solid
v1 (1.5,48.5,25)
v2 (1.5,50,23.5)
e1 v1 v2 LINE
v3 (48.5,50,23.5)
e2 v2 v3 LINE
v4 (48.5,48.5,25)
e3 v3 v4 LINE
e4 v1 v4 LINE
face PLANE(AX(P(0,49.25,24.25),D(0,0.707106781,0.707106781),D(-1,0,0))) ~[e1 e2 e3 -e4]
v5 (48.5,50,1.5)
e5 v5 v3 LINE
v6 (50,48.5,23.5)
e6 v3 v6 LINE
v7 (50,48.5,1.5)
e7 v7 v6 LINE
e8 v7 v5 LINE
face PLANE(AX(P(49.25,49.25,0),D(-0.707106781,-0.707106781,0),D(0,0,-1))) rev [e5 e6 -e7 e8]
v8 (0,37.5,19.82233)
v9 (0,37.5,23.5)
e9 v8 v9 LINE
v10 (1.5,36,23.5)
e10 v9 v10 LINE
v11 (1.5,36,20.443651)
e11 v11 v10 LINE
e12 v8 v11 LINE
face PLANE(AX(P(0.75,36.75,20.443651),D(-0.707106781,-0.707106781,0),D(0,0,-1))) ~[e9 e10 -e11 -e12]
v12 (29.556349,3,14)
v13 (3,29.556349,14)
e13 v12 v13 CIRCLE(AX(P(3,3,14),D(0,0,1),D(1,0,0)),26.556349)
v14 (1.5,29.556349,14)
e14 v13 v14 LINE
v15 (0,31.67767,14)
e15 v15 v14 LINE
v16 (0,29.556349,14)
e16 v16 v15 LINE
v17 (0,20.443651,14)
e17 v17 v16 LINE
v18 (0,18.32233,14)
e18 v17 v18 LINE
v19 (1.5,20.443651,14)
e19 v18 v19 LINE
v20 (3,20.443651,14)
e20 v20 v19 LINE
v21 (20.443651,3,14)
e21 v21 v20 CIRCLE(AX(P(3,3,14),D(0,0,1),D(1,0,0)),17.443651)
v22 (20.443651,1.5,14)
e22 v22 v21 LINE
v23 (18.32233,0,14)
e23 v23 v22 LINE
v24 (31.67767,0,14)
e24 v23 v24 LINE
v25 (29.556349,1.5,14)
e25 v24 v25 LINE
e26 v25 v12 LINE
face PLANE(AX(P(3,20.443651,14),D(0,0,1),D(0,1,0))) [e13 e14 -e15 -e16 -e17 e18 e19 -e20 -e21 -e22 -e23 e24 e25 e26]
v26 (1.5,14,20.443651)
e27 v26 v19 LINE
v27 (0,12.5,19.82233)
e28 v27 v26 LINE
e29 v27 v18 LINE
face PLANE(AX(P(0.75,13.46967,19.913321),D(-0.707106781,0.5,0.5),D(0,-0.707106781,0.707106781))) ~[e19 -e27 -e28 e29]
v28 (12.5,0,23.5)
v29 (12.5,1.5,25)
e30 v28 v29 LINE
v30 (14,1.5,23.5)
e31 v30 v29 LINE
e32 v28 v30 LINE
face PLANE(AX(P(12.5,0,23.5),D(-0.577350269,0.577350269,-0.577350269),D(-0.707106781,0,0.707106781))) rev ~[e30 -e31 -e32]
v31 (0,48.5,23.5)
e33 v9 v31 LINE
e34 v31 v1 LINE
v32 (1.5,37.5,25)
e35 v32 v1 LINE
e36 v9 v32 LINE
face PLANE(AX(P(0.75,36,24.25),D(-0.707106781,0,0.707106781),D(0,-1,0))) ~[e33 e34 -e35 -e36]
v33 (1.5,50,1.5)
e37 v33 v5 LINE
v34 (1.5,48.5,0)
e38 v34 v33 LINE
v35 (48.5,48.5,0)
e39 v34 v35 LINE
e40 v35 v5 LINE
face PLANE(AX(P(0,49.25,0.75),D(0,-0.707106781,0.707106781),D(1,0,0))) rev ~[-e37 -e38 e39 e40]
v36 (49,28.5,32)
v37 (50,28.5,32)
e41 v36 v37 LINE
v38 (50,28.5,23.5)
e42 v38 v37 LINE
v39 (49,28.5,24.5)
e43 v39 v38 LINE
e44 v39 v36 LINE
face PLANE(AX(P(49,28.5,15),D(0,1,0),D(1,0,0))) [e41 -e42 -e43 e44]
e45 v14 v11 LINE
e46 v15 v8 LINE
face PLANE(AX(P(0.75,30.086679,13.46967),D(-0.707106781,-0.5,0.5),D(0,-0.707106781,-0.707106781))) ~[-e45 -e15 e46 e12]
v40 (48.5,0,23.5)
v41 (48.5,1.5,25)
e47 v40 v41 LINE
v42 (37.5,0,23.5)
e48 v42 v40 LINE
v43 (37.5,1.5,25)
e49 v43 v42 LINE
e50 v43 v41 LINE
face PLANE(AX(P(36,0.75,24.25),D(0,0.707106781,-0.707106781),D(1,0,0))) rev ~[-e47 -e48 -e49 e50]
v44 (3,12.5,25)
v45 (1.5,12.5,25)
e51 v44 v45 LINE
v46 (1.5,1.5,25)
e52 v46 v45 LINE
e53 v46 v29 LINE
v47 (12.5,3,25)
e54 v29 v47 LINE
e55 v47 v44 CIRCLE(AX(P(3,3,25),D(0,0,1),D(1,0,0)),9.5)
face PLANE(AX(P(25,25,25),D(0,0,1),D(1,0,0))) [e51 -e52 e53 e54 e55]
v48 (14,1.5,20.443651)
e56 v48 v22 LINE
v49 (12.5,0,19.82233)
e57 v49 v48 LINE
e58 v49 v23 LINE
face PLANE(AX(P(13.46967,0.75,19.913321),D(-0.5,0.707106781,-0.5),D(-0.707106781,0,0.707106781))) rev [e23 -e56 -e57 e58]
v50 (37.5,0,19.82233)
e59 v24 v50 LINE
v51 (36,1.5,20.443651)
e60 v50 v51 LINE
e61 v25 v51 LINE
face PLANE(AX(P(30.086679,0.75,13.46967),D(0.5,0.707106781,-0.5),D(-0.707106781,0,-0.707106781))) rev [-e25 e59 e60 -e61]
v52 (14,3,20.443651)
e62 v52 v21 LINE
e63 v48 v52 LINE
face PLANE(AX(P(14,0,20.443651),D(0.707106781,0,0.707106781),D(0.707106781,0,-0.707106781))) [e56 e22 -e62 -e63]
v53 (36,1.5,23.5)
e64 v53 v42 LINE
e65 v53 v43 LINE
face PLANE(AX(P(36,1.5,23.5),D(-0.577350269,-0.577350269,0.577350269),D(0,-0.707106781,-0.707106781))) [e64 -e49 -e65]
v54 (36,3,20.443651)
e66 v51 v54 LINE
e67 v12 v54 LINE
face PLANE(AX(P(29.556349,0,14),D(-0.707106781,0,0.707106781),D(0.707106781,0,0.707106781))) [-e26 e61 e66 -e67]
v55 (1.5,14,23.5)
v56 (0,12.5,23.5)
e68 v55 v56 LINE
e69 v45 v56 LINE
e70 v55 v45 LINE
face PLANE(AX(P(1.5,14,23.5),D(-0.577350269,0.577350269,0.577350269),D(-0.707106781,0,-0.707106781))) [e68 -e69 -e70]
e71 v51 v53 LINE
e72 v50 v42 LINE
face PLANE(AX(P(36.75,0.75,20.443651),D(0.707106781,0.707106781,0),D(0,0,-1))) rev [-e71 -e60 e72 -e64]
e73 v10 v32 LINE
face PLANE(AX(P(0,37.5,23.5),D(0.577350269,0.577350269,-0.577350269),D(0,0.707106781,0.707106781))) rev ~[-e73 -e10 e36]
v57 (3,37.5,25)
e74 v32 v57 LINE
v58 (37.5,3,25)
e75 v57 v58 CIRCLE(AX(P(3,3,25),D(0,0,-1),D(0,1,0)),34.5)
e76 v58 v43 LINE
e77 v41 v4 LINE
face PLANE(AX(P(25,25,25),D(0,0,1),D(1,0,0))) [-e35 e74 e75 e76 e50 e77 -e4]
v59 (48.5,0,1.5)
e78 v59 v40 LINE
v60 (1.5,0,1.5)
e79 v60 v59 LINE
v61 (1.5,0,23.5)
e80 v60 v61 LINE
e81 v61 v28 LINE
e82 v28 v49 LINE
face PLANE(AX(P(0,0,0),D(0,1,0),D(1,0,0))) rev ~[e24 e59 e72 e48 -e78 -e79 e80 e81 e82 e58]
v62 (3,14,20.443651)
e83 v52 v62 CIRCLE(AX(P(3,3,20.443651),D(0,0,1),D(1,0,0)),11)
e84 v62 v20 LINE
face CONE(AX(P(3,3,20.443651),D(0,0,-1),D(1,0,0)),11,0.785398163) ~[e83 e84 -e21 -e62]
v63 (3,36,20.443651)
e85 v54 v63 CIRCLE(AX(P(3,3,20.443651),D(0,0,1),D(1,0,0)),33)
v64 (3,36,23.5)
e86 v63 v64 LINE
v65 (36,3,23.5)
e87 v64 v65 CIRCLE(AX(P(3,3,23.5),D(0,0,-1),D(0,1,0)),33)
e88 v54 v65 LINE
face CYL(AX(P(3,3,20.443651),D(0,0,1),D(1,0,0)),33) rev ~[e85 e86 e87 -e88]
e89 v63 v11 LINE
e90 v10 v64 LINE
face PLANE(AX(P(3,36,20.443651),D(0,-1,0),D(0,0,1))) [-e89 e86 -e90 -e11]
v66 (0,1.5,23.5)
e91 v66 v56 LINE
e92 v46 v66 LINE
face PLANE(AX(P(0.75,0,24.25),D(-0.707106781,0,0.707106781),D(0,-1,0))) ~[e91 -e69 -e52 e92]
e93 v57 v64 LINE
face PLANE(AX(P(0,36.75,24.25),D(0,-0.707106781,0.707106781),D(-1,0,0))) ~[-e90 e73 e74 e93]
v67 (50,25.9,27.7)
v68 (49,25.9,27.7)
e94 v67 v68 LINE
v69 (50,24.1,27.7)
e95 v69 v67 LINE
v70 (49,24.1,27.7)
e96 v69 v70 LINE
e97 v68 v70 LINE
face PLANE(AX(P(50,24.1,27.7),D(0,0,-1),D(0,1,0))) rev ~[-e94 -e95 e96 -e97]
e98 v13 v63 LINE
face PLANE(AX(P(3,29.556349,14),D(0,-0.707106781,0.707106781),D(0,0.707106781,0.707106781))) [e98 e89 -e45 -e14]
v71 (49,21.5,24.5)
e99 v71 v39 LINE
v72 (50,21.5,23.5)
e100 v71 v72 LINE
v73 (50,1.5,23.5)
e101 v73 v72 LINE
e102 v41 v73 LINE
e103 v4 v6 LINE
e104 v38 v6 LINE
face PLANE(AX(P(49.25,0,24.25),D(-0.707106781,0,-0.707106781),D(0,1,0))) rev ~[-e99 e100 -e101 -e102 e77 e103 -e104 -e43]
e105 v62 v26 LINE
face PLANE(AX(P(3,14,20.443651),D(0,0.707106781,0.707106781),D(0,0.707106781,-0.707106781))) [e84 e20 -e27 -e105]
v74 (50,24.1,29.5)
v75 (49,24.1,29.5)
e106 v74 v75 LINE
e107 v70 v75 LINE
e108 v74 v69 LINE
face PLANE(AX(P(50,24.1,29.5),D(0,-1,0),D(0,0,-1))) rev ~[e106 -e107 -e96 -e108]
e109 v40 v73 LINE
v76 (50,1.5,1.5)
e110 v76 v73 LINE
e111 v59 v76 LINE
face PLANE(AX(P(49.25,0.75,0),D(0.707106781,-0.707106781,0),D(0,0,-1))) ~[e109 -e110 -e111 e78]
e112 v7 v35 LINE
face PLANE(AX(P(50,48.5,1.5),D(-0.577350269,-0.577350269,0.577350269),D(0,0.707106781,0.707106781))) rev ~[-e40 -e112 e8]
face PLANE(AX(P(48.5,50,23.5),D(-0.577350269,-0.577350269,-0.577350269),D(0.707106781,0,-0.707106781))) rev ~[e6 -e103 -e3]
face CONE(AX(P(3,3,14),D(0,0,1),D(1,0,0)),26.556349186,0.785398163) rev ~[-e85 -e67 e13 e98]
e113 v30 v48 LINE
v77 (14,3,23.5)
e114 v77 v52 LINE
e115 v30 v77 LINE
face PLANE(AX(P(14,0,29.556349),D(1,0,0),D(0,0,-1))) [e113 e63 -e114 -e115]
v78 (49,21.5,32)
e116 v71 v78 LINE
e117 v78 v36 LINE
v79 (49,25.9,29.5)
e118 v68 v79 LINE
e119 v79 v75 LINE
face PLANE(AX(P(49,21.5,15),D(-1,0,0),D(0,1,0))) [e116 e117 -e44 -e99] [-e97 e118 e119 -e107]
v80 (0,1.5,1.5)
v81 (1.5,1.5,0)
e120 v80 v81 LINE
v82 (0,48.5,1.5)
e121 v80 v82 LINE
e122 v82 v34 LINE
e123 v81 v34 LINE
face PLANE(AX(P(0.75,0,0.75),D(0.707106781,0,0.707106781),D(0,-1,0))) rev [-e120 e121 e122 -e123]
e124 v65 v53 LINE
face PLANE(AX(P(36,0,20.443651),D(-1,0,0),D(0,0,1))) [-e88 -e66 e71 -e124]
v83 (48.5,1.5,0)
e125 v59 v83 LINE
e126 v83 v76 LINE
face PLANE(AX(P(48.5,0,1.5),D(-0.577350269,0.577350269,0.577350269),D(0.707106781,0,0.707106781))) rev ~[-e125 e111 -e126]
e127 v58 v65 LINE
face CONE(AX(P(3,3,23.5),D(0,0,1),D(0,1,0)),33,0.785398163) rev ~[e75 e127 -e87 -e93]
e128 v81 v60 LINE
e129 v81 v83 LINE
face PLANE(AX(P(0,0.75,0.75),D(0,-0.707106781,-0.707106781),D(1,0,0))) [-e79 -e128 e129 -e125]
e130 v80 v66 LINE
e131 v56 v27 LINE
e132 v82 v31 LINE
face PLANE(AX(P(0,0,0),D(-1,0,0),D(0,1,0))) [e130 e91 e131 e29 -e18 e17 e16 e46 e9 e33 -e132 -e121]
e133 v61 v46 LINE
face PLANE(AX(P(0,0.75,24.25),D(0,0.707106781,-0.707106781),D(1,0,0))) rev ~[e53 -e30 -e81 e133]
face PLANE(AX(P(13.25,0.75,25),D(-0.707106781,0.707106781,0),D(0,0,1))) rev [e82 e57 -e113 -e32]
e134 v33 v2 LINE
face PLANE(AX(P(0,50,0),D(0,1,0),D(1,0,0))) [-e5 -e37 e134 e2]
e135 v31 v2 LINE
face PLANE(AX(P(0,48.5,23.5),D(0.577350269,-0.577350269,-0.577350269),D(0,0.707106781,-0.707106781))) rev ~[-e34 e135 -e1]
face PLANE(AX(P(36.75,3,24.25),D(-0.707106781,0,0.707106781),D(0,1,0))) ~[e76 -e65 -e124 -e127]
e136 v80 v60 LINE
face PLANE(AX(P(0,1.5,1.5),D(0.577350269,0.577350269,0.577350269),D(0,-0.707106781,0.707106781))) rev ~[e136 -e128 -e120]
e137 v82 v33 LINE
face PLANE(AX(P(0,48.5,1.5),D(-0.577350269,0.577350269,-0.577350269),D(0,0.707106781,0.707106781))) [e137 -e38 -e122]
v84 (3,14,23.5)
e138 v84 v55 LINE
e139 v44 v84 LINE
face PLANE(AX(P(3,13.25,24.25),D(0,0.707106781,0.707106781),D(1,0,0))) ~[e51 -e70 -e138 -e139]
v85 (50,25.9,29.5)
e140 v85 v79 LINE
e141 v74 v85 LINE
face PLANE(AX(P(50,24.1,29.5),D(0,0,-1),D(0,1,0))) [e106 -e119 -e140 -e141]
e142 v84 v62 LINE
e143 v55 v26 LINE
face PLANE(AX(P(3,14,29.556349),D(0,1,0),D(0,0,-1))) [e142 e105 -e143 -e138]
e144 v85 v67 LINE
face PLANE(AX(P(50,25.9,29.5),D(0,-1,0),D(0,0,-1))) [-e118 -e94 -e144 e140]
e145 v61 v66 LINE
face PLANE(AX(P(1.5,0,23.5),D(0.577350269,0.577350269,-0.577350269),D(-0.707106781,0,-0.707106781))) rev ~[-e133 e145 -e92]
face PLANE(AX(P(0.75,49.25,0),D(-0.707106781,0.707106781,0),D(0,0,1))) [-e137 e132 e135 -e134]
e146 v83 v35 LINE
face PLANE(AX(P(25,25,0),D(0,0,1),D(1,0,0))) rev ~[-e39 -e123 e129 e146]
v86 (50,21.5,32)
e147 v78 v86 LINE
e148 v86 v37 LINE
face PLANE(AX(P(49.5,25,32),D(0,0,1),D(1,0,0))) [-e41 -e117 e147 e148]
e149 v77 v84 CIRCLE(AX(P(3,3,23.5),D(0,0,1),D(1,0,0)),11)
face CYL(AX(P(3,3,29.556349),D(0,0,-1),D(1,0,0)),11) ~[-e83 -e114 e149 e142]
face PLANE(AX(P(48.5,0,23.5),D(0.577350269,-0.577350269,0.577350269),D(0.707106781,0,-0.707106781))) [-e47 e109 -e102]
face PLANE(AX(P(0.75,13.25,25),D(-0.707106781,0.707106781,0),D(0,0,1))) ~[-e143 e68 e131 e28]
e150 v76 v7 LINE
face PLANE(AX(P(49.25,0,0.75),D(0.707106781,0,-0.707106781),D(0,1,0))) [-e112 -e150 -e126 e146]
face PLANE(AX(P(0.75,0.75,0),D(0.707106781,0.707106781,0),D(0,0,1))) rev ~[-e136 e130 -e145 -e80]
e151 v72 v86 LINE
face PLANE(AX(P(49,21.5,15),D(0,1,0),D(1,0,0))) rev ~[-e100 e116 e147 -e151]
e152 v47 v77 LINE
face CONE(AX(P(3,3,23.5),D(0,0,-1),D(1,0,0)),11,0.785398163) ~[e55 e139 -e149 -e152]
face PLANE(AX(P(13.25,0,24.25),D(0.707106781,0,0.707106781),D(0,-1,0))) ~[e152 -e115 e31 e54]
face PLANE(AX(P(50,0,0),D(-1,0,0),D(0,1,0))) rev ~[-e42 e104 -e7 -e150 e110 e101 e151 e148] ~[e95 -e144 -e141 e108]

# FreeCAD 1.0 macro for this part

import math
import FreeCAD as App
import Part
import Sketcher
Q = App.Units.Quantity


def edges_at(feature, points):
    """Names of the edges that pass closest to the given points."""
    edges = feature.Shape.Edges
    near = lambda p: min(range(len(edges)), key=lambda i: edges[i].distToShape(Part.Vertex(*p))[0])
    return sorted({f"Edge{near(p) + 1}" for p in points})


def add_polygon(sketch, points):
    """Adds a closed chain of lines whose ends are joined by coincident constraints."""
    first, n = sketch.GeometryCount, len(points)
    for a, b in zip(points, points[1:] + points[:1]):
        sketch.addGeometry(Part.LineSegment(App.Vector(*a, 0), App.Vector(*b, 0)), False)
    for i in range(n):
        sketch.addConstraint(Sketcher.Constraint("Coincident", first + i, 2, first + (i + 1) % n, 1))

doc = App.newDocument("Part")
body = doc.addObject("PartDesign::Body", "Body")

sketch1 = body.newObject("Sketcher::SketchObject", "Sketch")
sketch1.AttachmentSupport = (doc.getObject("XY_Plane"), [""])
sketch1.MapMode = "FlatFace"
add_polygon(sketch1, [(0, 50), (0, 0), (50, 0), (50, 50)])
sketch1.addConstraint(Sketcher.Constraint("Vertical", 0))
sketch1.addConstraint(Sketcher.Constraint("Horizontal", 1))
sketch1.addConstraint(Sketcher.Constraint("Vertical", 2))
sketch1.addConstraint(Sketcher.Constraint("Horizontal", 3))
sketch1.addConstraint(Sketcher.Constraint("Coincident", 0, 2, -1, 1))
sketch1.addConstraint(Sketcher.Constraint("Equal", 3, 0))
sketch1.addConstraint(Sketcher.Constraint("DistanceX", 1, 1, 1, 2, Q("50 mm")))
pad1 = body.newObject("PartDesign::Pad", "Pad")
pad1.Profile = sketch1
pad1.Length = 25

sketch2 = body.newObject("Sketcher::SketchObject", "Sketch001")
sketch2.AttachmentSupport = (doc.getObject("XZ_Plane"), [""])
sketch2.MapMode = "FlatFace"
add_polygon(sketch2, [(36, 30), (30, 36), (20, 36), (14, 30), (14, 20), (20, 14), (30, 14), (36, 20)])
sketch2.addConstraint(Sketcher.Constraint("Horizontal", 1))
sketch2.addConstraint(Sketcher.Constraint("Vertical", 3))
sketch2.addConstraint(Sketcher.Constraint("Horizontal", 5))
sketch2.addConstraint(Sketcher.Constraint("Vertical", 7))
sketch2.addConstraint(Sketcher.Constraint("Perpendicular", 0, 2))
sketch2.addConstraint(Sketcher.Constraint("Perpendicular", 2, 4))
sketch2.addConstraint(Sketcher.Constraint("Perpendicular", 4, 6))
sketch2.addConstraint(Sketcher.Constraint("Horizontal", 3, 2, 6, 2))
sketch2.addConstraint(Sketcher.Constraint("Horizontal", 2, 2, 7, 2))
sketch2.addConstraint(Sketcher.Constraint("Vertical", 1, 2, 4, 2))
sketch2.addConstraint(Sketcher.Constraint("Vertical", 0, 2, 5, 2))
sketch2.addConstraint(Sketcher.Constraint("Equal", 5, 3))
sketch2.addConstraint(Sketcher.Constraint("DistanceY", -1, 1, 0, 2, Q("36 mm")))
sketch2.addConstraint(Sketcher.Constraint("DistanceX", -1, 1, 2, 2, Q("14 mm")))
sketch2.addConstraint(Sketcher.Constraint("DistanceY", -1, 1, 4, 2, Q("14 mm")))
sketch2.addConstraint(Sketcher.Constraint("DistanceX", 1, 2, 1, 1, Q("9.112698 mm")))

sketch3 = body.newObject("Sketcher::SketchObject", "Sketch002")
sketch3.AttachmentSupport = (doc.getObject("XY_Plane"), [""])
sketch3.MapMode = "FlatFace"
sketch3.AttachmentOffset = App.Placement(App.Vector(0, 0, 25), App.Rotation())
sketch3.addGeometry(Part.LineSegment(App.Vector(25, 0, 0), App.Vector(25, 3, 0)), False)
sketch3.addGeometry(Part.ArcOfCircle(Part.Circle(App.Vector(3, 3, 0), App.Vector(0, 0, 1), 22), math.radians(0), math.radians(90)), False)
sketch3.addGeometry(Part.LineSegment(App.Vector(3, 25, 0), App.Vector(0, 25, 0)), False)
sketch3.addConstraint(Sketcher.Constraint("Tangent", 0, 2, 1, 1))
sketch3.addConstraint(Sketcher.Constraint("Tangent", 1, 2, 2, 1))
sketch3.addConstraint(Sketcher.Constraint("Vertical", 0))
sketch3.addConstraint(Sketcher.Constraint("Horizontal", 2))
sketch3.addConstraint(Sketcher.Constraint("PointOnObject", 0, 1, -1))
sketch3.addConstraint(Sketcher.Constraint("PointOnObject", 2, 2, -2))
sketch3.addConstraint(Sketcher.Constraint("Equal", 2, 0))
sketch3.addConstraint(Sketcher.Constraint("Radius", 1, Q("22 mm")))
sketch3.addConstraint(Sketcher.Constraint("DistanceX", 2, 2, 2, 1, Q("3 mm")))
doc.recompute()

subtractivepipe = body.newObject("PartDesign::SubtractivePipe", "SubtractivePipe")
subtractivepipe.Profile = sketch2
subtractivepipe.Spine = (sketch3, ["Edge1", "Edge2", "Edge3"])
doc.recompute()

chamfer = body.newObject("PartDesign::Chamfer", "Chamfer")
chamfer.Base = (subtractivepipe, edges_at(subtractivepipe, [
    (50, 25, 25),
    (25, 50, 25),
    (0, 7, 25),
    (43, 0, 25),
    (14, 1.5, 25),
    (10.778, 10.778, 25),
    (1.5, 14, 25),
    (36, 1.5, 25),
    (26.335, 26.335, 25),
    (1.5, 36, 25),
    (0, 14, 22.722),
    (0, 36, 22.722),
    (36, 0, 22.722),
    (14, 0, 22.722),
    (17.222, 0, 17.222),
    (32.778, 0, 17.222),
    (0, 32.778, 17.222),
    (0, 17.222, 17.222),
    (0, 43, 25),
    (25, 50, 0),
    (50, 25, 0),
    (25, 0, 0),
    (0, 25, 0),
    (7, 0, 25),
    (0, 50, 12.5),
    (50, 50, 12.5),
    (50, 0, 12.5),
    (0, 0, 12.5),
]))
chamfer.Size = 1.5

sketch4 = body.newObject("Sketcher::SketchObject", "Sketch003")
sketch4.AttachmentSupport = (doc.getObject("XY_Plane"), [""])
sketch4.MapMode = "FlatFace"
sketch4.AttachmentOffset = App.Placement(App.Vector(0, 0, 25), App.Rotation())
add_polygon(sketch4, [(49, 28.5), (49, 21.5), (50, 21.5), (50, 28.5)])
sketch4.addConstraint(Sketcher.Constraint("Vertical", 0))
sketch4.addConstraint(Sketcher.Constraint("Horizontal", 1))
sketch4.addConstraint(Sketcher.Constraint("Vertical", 2))
sketch4.addConstraint(Sketcher.Constraint("Horizontal", 3))
sketch4.addConstraint(Sketcher.Constraint("DistanceX", 1, 1, 1, 2, Q("1 mm")))
sketch4.addConstraint(Sketcher.Constraint("DistanceY", 0, 2, 0, 1, Q("7 mm")))
sketch4.addConstraint(Sketcher.Constraint("DistanceX", -1, 1, 0, 2, Q("49 mm")))
sketch4.addConstraint(Sketcher.Constraint("DistanceY", -1, 1, 0, 2, Q("21.5 mm")))
pad2 = body.newObject("PartDesign::Pad", "Pad001")
pad2.Profile = sketch4
pad2.Type = "TwoLengths"
pad2.Length = 7
pad2.Length2 = 10

sketch5 = body.newObject("Sketcher::SketchObject", "Sketch004")
sketch5.AttachmentSupport = (doc.getObject("YZ_Plane"), [""])
sketch5.MapMode = "FlatFace"
sketch5.AttachmentOffset = App.Placement(App.Vector(0, 0, 50), App.Rotation())
add_polygon(sketch5, [(25.9, 29.5), (24.1, 29.5), (24.1, 27.7), (25.9, 27.7)])
sketch5.addConstraint(Sketcher.Constraint("Horizontal", 0))
sketch5.addConstraint(Sketcher.Constraint("Vertical", 1))
sketch5.addConstraint(Sketcher.Constraint("Horizontal", 2))
sketch5.addConstraint(Sketcher.Constraint("Vertical", 3))
sketch5.addConstraint(Sketcher.Constraint("Equal", 2, 1))
sketch5.addConstraint(Sketcher.Constraint("DistanceX", 0, 2, 0, 1, Q("1.8 mm")))
sketch5.addConstraint(Sketcher.Constraint("DistanceX", -1, 1, 0, 2, Q("24.1 mm")))
sketch5.addConstraint(Sketcher.Constraint("DistanceY", -1, 1, 0, 2, Q("29.5 mm")))
pocket1 = body.newObject("PartDesign::Pocket", "Pocket")
pocket1.Profile = sketch5
pocket1.Length = 7

doc.recompute()
